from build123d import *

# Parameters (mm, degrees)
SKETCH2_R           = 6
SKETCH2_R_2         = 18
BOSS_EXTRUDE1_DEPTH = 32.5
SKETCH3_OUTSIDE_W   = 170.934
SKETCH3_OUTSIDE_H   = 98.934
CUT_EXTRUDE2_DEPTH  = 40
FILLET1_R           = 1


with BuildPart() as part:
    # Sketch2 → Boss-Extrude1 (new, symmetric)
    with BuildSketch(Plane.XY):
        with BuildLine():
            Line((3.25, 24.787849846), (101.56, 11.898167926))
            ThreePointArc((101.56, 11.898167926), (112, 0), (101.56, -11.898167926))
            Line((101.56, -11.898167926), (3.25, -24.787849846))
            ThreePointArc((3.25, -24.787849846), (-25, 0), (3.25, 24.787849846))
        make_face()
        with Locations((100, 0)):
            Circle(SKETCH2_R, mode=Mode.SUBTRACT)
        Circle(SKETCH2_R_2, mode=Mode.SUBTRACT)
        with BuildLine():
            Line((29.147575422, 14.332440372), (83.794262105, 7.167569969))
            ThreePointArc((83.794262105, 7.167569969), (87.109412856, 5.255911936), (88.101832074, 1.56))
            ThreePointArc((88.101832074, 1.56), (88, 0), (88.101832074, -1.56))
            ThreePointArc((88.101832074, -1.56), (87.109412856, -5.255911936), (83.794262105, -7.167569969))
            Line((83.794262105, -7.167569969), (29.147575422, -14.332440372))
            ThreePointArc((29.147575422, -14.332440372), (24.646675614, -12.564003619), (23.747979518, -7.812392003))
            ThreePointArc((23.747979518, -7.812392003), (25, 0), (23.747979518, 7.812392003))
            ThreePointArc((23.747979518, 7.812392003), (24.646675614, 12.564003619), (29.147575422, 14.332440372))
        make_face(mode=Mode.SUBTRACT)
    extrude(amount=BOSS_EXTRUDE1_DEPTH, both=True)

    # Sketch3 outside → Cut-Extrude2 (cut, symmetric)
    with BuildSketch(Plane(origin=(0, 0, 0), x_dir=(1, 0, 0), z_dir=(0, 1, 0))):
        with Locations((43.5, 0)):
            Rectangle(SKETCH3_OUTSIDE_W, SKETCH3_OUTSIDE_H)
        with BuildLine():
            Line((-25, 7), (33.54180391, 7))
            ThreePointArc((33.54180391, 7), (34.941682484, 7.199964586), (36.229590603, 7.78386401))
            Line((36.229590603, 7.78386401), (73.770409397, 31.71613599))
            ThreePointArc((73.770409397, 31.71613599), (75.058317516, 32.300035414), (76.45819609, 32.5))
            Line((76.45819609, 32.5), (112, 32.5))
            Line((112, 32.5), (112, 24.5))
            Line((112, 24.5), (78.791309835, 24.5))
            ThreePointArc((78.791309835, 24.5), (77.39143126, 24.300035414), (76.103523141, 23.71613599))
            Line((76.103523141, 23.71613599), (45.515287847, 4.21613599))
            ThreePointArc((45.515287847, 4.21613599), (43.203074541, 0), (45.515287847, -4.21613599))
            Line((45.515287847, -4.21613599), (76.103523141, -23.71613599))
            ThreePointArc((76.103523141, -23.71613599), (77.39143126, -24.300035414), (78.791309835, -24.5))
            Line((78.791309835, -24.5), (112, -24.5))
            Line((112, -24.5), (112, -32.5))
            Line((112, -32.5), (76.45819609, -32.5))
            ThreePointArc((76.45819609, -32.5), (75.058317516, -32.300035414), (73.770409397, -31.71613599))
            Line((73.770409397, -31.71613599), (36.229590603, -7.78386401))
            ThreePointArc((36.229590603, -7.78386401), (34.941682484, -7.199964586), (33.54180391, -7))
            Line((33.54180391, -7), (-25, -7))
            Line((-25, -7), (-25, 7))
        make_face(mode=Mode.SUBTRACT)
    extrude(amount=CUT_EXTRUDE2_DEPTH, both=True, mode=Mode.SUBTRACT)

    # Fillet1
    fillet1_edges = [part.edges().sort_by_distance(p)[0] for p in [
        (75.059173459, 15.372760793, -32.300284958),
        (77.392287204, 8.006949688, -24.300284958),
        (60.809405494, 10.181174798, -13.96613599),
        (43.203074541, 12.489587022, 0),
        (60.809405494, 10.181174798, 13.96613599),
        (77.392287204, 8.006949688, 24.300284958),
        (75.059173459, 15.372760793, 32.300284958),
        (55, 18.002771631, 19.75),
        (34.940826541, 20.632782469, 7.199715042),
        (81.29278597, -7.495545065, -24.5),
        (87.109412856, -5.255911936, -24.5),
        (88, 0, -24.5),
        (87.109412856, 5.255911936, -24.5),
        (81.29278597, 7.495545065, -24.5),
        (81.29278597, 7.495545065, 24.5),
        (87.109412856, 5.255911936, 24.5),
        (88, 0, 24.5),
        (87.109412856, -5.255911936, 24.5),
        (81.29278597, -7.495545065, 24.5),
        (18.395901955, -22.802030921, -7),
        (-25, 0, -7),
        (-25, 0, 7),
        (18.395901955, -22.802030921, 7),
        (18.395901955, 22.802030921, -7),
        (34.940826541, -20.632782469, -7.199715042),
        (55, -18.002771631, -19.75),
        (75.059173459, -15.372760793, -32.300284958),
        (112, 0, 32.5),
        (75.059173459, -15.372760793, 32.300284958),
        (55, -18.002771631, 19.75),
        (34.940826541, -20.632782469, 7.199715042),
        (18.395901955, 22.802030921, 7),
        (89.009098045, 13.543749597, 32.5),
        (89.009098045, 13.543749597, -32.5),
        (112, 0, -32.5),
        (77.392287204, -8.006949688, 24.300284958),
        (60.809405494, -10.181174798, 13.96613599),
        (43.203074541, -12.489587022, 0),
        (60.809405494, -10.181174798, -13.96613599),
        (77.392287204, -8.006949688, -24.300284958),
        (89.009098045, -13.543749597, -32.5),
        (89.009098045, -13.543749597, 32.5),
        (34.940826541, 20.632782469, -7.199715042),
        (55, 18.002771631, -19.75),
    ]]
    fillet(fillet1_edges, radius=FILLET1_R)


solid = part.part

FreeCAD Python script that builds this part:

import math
import FreeCAD as App
import Part
import Sketcher

V = App.Vector
Q = App.Units.Quantity


def edges_at(feature, points):
    """Names of the edges that pass closest to the given points."""
    edges = feature.Shape.Edges
    near = lambda p: min(range(len(edges)), key=lambda i: edges[i].distToShape(Part.Vertex(*p))[0])
    return sorted({f"Edge{near(p) + 1}" for p in points})

doc = App.newDocument("Part")
body = doc.addObject("PartDesign::Body", "Body")

# Sketch on XY plane
sketch1 = doc.addObject("Sketcher::SketchObject", "Sketch")
body.addObject(sketch1)
sketch1.AttachmentSupport = (doc.XY_Plane, [""])
sketch1.MapMode = "FlatFace"
sketch1.addGeometry([
    Part.LineSegment(V(101.6, 11.9, 0), V(3.2, 24.8, 0)),  # 0
    Part.ArcOfCircle(Part.Circle(V(0, 0, 0), V(0, 0, 1), 25), math.radians(83), math.radians(277)),  # 1
    Part.LineSegment(V(3.2, -24.8, 0), V(101.6, -11.9, 0)),  # 2
    Part.ArcOfCircle(Part.Circle(V(100, 0, 0), V(0, 0, 1), 12), math.radians(-83), math.radians(83)),  # 3
    Part.Circle(V(100, 0, 0), V(0, 0, 1), 6),  # 4
    Part.LineSegment(V(29.1, 14.3, 0), V(83.8, 7.2, 0)),  # 5
    Part.ArcOfCircle(Part.Circle(V(83.1, 2.2, 0), V(0, 0, 1), 5), math.radians(-7), math.radians(83)),  # 6
    Part.ArcOfCircle(Part.Circle(V(100, 0, 0), V(0, 0, 1), 12), math.radians(172.53), math.radians(187.47)),  # 7
    Part.ArcOfCircle(Part.Circle(V(83.1, -2.2, 0), V(0, 0, 1), 5), math.radians(-83), math.radians(7)),  # 8
    Part.LineSegment(V(83.8, -7.2, 0), V(29.1, -14.3, 0)),  # 9
    Part.ArcOfCircle(Part.Circle(V(28.5, -9.4, 0), V(0, 0, 1), 5), math.radians(162), math.radians(277)),  # 10
    Part.ArcOfCircle(Part.Circle(V(0, 0, 0), V(0, 0, 1), 25), math.radians(-18), math.radians(18)),  # 11
    Part.ArcOfCircle(Part.Circle(V(28.5, 9.4, 0), V(0, 0, 1), 5), math.radians(83), math.radians(198)),  # 12
    Part.Circle(V(0, 0, 0), V(0, 0, 1), 18),  # 13
], False)
sketch1.addConstraint([
    Sketcher.Constraint("Tangent", 0, 2, 1, 1),
    Sketcher.Constraint("Tangent", 1, 2, 2, 1),
    Sketcher.Constraint("Tangent", 2, 2, 3, 1),
    Sketcher.Constraint("Tangent", 3, 2, 0, 1),
    Sketcher.Constraint("Tangent", 5, 2, 6, 2),
    Sketcher.Constraint("Tangent", 6, 1, 7, 1),
    Sketcher.Constraint("Tangent", 7, 2, 8, 2),
    Sketcher.Constraint("Tangent", 8, 1, 9, 1),
    Sketcher.Constraint("Tangent", 9, 2, 10, 2),
    Sketcher.Constraint("Tangent", 10, 1, 11, 1),
    Sketcher.Constraint("Tangent", 11, 2, 12, 2),
    Sketcher.Constraint("Tangent", 12, 1, 5, 1),
    Sketcher.Constraint("Coincident", 1, 3, -1, 1),
    Sketcher.Constraint("Coincident", 11, 3, -1, 1),
    Sketcher.Constraint("Coincident", 13, 3, -1, 1),
    Sketcher.Constraint("Coincident", 4, 3, 3, 3),
    Sketcher.Constraint("Coincident", 7, 3, 3, 3),
    Sketcher.Constraint("Equal", 3, 7),
    Sketcher.Constraint("Equal", 6, 8),
    Sketcher.Constraint("Equal", 8, 10),
    Sketcher.Constraint("Equal", 1, 11),
    Sketcher.Constraint("Equal", 10, 12),
    Sketcher.Constraint("Symmetric", 6, 3, 8, 3, -1),
    Sketcher.Constraint("Parallel", 0, 5),
    Sketcher.Constraint("Parallel", 2, 9),
    Sketcher.Constraint("Diameter", 4, Q("12 mm")),
    Sketcher.Constraint("Diameter", 13, Q("36 mm")),
    Sketcher.Constraint("Radius", 1, Q("25 mm")),
    Sketcher.Constraint("Radius", 3, Q("12 mm")),
    Sketcher.Constraint("Radius", 6, Q("5 mm")),
    Sketcher.Constraint("DistanceX", -1, 1, 3, 3, Q("100 mm")),
    Sketcher.Constraint("DistanceY", -1, 1, 6, 3, Q("2.21 mm")),
])
pad1 = doc.addObject("PartDesign::Pad", "Pad")
body.addObject(pad1)
pad1.Profile = sketch1
pad1.Length = 65
pad1.Midplane = True

# Sketch on XZ plane
sketch2 = doc.addObject("Sketcher::SketchObject", "Sketch001")
body.addObject(sketch2)
sketch2.AttachmentSupport = (doc.XZ_Plane, [""])
sketch2.MapMode = "FlatFace"
sketch2.addGeometry([
    Part.LineSegment(V(-42, -49.5, 0), V(-42, 49.5, 0)),  # 0
    Part.LineSegment(V(-42, 49.5, 0), V(129, 49.5, 0)),  # 1
    Part.LineSegment(V(129, 49.5, 0), V(129, -49.5, 0)),  # 2
    Part.LineSegment(V(129, -49.5, 0), V(-42, -49.5, 0)),  # 3
    Part.LineSegment(V(-25, 7, 0), V(-25, -7, 0)),  # 4
    Part.LineSegment(V(-25, -7, 0), V(33.5, -7, 0)),  # 5
    Part.ArcOfCircle(Part.Circle(V(33.5, -12, 0), V(0, 0, 1), 5), math.radians(57), math.radians(90)),  # 6
    Part.LineSegment(V(36.2, -7.8, 0), V(73.8, -31.7, 0)),  # 7
    Part.ArcOfCircle(Part.Circle(V(76.5, -27.5, 0), V(0, 0, 1), 5), math.radians(-123), math.radians(-90)),  # 8
    Part.LineSegment(V(76.5, -32.5, 0), V(112, -32.5, 0)),  # 9
    Part.LineSegment(V(112, -32.5, 0), V(112, -24.5, 0)),  # 10
    Part.LineSegment(V(112, -24.5, 0), V(78.8, -24.5, 0)),  # 11
    Part.ArcOfCircle(Part.Circle(V(78.8, -19.5, 0), V(0, 0, 1), 5), math.radians(-123), math.radians(-90)),  # 12
    Part.LineSegment(V(76.1, -23.7, 0), V(45.5, -4.2, 0)),  # 13
    Part.ArcOfCircle(Part.Circle(V(48.2, 0, 0), V(0, 0, 1), 5), math.radians(123), math.radians(237)),  # 14
    Part.LineSegment(V(45.5, 4.2, 0), V(76.1, 23.7, 0)),  # 15
    Part.ArcOfCircle(Part.Circle(V(78.8, 19.5, 0), V(0, 0, 1), 5), math.radians(90), math.radians(123)),  # 16
    Part.LineSegment(V(78.8, 24.5, 0), V(112, 24.5, 0)),  # 17
    Part.LineSegment(V(112, 24.5, 0), V(112, 32.5, 0)),  # 18
    Part.LineSegment(V(112, 32.5, 0), V(76.5, 32.5, 0)),  # 19
    Part.ArcOfCircle(Part.Circle(V(76.5, 27.5, 0), V(0, 0, 1), 5), math.radians(90), math.radians(123)),  # 20
    Part.LineSegment(V(73.8, 31.7, 0), V(36.2, 7.8, 0)),  # 21
    Part.ArcOfCircle(Part.Circle(V(33.5, 12, 0), V(0, 0, 1), 5), math.radians(-90), math.radians(-57)),  # 22
    Part.LineSegment(V(33.5, 7, 0), V(-25, 7, 0)),  # 23
], False)
sketch2.addConstraint([
    Sketcher.Constraint("Coincident", 0, 2, 1, 1),
    Sketcher.Constraint("Coincident", 1, 2, 2, 1),
    Sketcher.Constraint("Coincident", 2, 2, 3, 1),
    Sketcher.Constraint("Coincident", 3, 2, 0, 1),
    Sketcher.Constraint("Coincident", 4, 2, 5, 1),
    Sketcher.Constraint("Tangent", 5, 2, 6, 2),
    Sketcher.Constraint("Tangent", 6, 1, 7, 1),
    Sketcher.Constraint("Tangent", 7, 2, 8, 1),
    Sketcher.Constraint("Tangent", 8, 2, 9, 1),
    Sketcher.Constraint("Coincident", 9, 2, 10, 1),
    Sketcher.Constraint("Coincident", 10, 2, 11, 1),
    Sketcher.Constraint("Tangent", 11, 2, 12, 2),
    Sketcher.Constraint("Tangent", 12, 1, 13, 1),
    Sketcher.Constraint("Tangent", 13, 2, 14, 2),
    Sketcher.Constraint("Tangent", 14, 1, 15, 1),
    Sketcher.Constraint("Tangent", 15, 2, 16, 2),
    Sketcher.Constraint("Tangent", 16, 1, 17, 1),
    Sketcher.Constraint("Coincident", 17, 2, 18, 1),
    Sketcher.Constraint("Coincident", 18, 2, 19, 1),
    Sketcher.Constraint("Tangent", 19, 2, 20, 1),
    Sketcher.Constraint("Tangent", 20, 2, 21, 1),
    Sketcher.Constraint("Tangent", 21, 2, 22, 2),
    Sketcher.Constraint("Tangent", 22, 1, 23, 1),
    Sketcher.Constraint("Coincident", 23, 2, 4, 1),
    Sketcher.Constraint("Vertical", 0),
    Sketcher.Constraint("Horizontal", 1),
    Sketcher.Constraint("Vertical", 2),
    Sketcher.Constraint("Horizontal", 3),
    Sketcher.Constraint("Vertical", 4),
    Sketcher.Constraint("Horizontal", 5),
    Sketcher.Constraint("Horizontal", 9),
    Sketcher.Constraint("Vertical", 10),
    Sketcher.Constraint("Horizontal", 11),
    Sketcher.Constraint("Horizontal", 17),
    Sketcher.Constraint("Vertical", 18),
    Sketcher.Constraint("Horizontal", 19),
    Sketcher.Constraint("Horizontal", 23),
    Sketcher.Constraint("Equal", 6, 8),
    Sketcher.Constraint("Equal", 8, 12),
    Sketcher.Constraint("Equal", 12, 14),
    Sketcher.Constraint("Equal", 14, 16),
    Sketcher.Constraint("Equal", 16, 20),
    Sketcher.Constraint("Equal", 20, 22),
    Sketcher.Constraint("Symmetric", 12, 3, 16, 3, -1),
    Sketcher.Constraint("Symmetric", 8, 3, 20, 3, -1),
    Sketcher.Constraint("Symmetric", 6, 3, 22, 3, -1),
    Sketcher.Constraint("PointOnObject", 14, 3, -1),
    Sketcher.Constraint("Parallel", 7, 13),
    Sketcher.Constraint("Vertical", 10, 2, 17, 2),
    Sketcher.Constraint("Radius", 6, Q("5 mm")),
    Sketcher.Constraint("DistanceY", 4, 2, 4, 1, Q("14 mm")),
    Sketcher.Constraint("DistanceY", 10, 1, 10, 2, Q("8 mm")),
    Sketcher.Constraint("DistanceX", 4, 2, -1, 1, Q("25 mm")),
    Sketcher.Constraint("DistanceX", -1, 1, 9, 2, Q("112 mm")),
    Sketcher.Constraint("DistanceY", 12, 3, 16, 3, Q("39 mm")),
    Sketcher.Constraint("DistanceX", 1, 1, 1, 2, Q("170.934 mm")),
    Sketcher.Constraint("DistanceY", 0, 1, 0, 2, Q("98.934 mm")),
    Sketcher.Constraint("DistanceX", 0, 2, -1, 1, Q("41.967 mm")),
    Sketcher.Constraint("DistanceY", -1, 1, 0, 2, Q("49.467 mm")),
    Sketcher.Constraint("Distance", 13, Q("36.2752 mm")),
    Sketcher.Constraint("DistanceX", 11, 2, 11, 1, Q("33.20869 mm")),
    Sketcher.Constraint("DistanceX", 7, 2, 12, 3, Q("5.0209 mm")),
])
pocket1 = doc.addObject("PartDesign::Pocket", "Pocket")
body.addObject(pocket1)
pocket1.Profile = sketch2
pocket1.Length = 80
pocket1.Midplane = True
doc.recompute()

fillet = doc.addObject("PartDesign::Fillet", "Fillet")
body.addObject(fillet)
fillet.Base = (pocket1, edges_at(pocket1, [
    (75.059, 15.373, -32.3),
    (77.392, 8.007, -24.3),
    (60.809, 10.181, -13.966),
    (43.203, 12.49, 0),
    (60.809, 10.181, 13.966),
    (77.392, 8.007, 24.3),
    (75.059, 15.373, 32.3),
    (55, 18.003, 19.75),
    (34.941, 20.633, 7.2),
    (81.293, -7.496, -24.5),
    (87.109, -5.256, -24.5),
    (88, 0, -24.5),
    (87.109, 5.256, -24.5),
    (81.293, 7.496, -24.5),
    (81.293, 7.496, 24.5),
    (87.109, 5.256, 24.5),
    (88, 0, 24.5),
    (87.109, -5.256, 24.5),
    (81.293, -7.496, 24.5),
    (18.396, -22.802, -7),
    (-25, 0, -7),
    (-25, 0, 7),
    (18.396, -22.802, 7),
    (18.396, 22.802, -7),
    (34.941, -20.633, -7.2),
    (55, -18.003, -19.75),
    (75.059, -15.373, -32.3),
    (112, 0, 32.5),
    (75.059, -15.373, 32.3),
    (55, -18.003, 19.75),
    (34.941, -20.633, 7.2),
    (18.396, 22.802, 7),
    (89.009, 13.544, 32.5),
    (89.009, 13.544, -32.5),
    (112, 0, -32.5),
    (77.392, -8.007, 24.3),
    (60.809, -10.181, 13.966),
    (43.203, -12.49, 0),
    (60.809, -10.181, -13.966),
    (77.392, -8.007, -24.3),
    (89.009, -13.544, -32.5),
    (89.009, -13.544, 32.5),
    (34.941, 20.633, -7.2),
    (55, 18.003, -19.75),
]))
fillet.Radius = 1

doc.recompute()
